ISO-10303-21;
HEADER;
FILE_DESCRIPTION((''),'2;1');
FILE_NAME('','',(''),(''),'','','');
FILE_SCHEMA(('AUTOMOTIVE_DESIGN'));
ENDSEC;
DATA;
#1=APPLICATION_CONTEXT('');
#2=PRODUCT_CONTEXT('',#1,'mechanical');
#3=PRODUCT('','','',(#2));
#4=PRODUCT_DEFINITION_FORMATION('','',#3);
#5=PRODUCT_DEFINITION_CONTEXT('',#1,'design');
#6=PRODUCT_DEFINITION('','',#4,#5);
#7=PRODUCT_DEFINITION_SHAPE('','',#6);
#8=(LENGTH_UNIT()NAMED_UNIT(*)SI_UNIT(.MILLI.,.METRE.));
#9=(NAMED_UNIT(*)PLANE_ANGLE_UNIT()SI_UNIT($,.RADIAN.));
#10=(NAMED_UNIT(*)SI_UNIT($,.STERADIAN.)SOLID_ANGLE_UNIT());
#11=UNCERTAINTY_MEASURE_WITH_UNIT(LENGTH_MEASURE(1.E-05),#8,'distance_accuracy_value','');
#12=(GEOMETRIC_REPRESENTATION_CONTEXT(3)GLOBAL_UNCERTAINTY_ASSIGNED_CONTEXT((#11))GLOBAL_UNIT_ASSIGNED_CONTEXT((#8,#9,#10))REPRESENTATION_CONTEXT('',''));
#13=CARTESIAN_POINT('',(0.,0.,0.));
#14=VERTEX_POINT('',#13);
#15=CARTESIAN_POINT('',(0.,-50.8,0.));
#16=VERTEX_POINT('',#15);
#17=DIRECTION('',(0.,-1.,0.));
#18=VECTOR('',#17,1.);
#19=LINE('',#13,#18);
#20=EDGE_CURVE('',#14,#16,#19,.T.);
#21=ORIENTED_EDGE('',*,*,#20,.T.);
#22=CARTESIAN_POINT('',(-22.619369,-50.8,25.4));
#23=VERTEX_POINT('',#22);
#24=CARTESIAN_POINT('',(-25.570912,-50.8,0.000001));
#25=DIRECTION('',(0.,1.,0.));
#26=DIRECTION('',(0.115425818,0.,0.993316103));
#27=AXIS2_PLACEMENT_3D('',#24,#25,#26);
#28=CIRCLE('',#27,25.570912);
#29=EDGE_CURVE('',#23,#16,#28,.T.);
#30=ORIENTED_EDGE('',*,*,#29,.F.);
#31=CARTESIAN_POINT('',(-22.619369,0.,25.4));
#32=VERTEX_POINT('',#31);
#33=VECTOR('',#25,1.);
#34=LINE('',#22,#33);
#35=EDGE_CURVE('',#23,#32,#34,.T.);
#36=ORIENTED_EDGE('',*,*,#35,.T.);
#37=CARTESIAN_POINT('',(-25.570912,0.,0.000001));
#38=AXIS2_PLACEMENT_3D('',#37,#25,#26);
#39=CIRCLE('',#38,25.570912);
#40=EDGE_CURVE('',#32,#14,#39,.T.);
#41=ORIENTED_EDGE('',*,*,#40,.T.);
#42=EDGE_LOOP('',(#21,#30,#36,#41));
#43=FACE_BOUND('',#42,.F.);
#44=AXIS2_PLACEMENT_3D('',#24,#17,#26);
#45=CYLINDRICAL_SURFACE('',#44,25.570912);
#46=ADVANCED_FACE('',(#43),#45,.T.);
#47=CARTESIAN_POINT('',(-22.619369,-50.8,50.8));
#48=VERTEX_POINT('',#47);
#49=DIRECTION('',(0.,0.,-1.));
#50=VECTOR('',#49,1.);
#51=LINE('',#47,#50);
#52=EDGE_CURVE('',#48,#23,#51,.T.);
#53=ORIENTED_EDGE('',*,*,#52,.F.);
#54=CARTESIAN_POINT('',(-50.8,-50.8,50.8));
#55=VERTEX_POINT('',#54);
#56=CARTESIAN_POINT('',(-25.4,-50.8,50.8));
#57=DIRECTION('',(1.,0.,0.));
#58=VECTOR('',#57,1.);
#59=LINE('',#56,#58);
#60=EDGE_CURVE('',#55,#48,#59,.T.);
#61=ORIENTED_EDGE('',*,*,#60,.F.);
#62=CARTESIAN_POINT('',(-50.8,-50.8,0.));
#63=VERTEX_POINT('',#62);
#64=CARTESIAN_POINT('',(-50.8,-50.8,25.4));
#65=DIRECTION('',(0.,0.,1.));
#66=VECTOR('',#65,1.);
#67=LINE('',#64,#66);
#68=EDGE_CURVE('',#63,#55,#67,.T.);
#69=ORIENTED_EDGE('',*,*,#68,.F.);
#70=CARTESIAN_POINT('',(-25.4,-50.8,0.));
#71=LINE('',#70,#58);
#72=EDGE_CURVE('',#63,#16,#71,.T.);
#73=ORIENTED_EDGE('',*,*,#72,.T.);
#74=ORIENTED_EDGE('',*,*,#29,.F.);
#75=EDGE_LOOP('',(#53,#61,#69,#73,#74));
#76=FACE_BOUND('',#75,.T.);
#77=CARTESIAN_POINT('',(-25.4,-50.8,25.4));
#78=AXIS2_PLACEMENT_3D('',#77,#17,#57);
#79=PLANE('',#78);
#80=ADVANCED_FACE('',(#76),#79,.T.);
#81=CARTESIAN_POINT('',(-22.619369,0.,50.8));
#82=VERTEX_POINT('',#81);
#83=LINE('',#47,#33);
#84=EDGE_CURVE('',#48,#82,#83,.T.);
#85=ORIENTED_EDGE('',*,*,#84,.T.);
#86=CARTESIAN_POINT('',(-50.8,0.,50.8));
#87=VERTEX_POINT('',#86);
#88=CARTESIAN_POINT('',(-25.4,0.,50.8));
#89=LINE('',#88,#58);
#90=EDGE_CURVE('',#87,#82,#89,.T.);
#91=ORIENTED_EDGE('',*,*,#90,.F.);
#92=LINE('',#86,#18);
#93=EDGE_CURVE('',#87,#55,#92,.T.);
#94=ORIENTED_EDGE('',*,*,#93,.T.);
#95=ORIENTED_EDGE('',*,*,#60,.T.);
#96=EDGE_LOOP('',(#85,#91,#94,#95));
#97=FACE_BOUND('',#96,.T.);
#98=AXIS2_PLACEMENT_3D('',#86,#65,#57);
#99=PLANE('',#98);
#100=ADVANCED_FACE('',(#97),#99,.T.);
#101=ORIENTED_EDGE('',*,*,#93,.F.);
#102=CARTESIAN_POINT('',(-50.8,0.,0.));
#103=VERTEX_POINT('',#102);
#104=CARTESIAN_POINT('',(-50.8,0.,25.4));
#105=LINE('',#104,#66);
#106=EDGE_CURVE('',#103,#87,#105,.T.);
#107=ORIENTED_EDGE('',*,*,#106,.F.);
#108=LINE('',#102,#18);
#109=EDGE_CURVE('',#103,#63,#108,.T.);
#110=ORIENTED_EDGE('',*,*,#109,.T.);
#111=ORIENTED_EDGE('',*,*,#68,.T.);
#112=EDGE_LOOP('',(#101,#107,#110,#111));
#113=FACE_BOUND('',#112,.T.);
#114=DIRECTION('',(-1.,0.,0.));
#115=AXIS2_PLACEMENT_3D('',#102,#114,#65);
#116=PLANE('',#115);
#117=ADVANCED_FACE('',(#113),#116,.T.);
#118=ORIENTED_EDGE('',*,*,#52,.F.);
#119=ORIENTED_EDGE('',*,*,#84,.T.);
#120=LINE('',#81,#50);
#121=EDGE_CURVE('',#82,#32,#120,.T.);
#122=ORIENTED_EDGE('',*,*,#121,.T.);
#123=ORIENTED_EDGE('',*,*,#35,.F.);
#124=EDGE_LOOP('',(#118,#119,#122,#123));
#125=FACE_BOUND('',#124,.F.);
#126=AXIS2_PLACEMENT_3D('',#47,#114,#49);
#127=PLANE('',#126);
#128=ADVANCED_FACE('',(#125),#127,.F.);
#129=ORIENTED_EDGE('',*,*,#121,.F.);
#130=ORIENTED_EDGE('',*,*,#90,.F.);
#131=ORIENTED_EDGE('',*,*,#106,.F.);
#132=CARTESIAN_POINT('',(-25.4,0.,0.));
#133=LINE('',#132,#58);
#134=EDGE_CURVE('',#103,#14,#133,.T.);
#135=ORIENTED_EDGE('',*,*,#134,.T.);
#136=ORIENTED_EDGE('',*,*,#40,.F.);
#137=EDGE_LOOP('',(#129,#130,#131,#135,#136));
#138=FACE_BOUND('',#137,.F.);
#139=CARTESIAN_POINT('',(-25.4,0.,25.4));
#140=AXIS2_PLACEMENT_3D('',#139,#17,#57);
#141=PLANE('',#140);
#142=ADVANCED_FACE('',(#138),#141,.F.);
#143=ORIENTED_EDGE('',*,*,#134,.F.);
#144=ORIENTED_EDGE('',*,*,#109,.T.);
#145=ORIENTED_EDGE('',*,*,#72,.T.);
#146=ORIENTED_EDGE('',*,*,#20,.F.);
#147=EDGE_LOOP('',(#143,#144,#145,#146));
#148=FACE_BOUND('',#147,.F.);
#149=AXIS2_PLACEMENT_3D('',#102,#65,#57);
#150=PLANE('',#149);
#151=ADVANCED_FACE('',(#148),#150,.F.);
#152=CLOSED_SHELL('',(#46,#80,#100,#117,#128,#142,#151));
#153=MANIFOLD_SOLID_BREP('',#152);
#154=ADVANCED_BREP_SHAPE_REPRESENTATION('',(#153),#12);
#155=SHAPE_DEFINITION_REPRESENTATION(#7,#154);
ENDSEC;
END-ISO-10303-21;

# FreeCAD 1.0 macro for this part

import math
import FreeCAD as App
import Part
import Sketcher
from FreeCAD import Vector
Q = App.Units.Quantity


def add_polygon(sketch, points):
    """Adds a closed chain of lines whose ends are joined by coincident constraints."""
    first, n = sketch.GeometryCount, len(points)
    for a, b in zip(points, points[1:] + points[:1]):
        sketch.addGeometry(Part.LineSegment(App.Vector(*a, 0), App.Vector(*b, 0)), False)
    for i in range(n):
        sketch.addConstraint(Sketcher.Constraint("Coincident", first + i, 2, first + (i + 1) % n, 1))

doc = App.newDocument("Part")
body = doc.addObject("PartDesign::Body", "Body")

# Sketch on XZ plane
sketch1 = body.newObject("Sketcher::SketchObject", "Sketch")
sketch1.AttachmentSupport = (doc.getObject("XZ_Plane"), [""])
sketch1.MapMode = "FlatFace"
add_polygon(sketch1, [(-51, 51), (-51, 0), (0, 0), (0, 51)])  # lines 0-3
sketch1.addConstraint([
    Sketcher.Constraint("Vertical", 0),
    Sketcher.Constraint("Horizontal", 1),
    Sketcher.Constraint("Vertical", 2),
    Sketcher.Constraint("Horizontal", 3),
    Sketcher.Constraint("Coincident", 1, 2, -1, 1),
    Sketcher.Constraint("Equal", 3, 0),
    Sketcher.Constraint("DistanceX", 1, 1, 1, 2, Q("2 in")),
])
pad1 = body.newObject("PartDesign::Pad", "Pad")
pad1.Profile = sketch1
pad1.Length = Q("2 in")

# Sketch on XZ plane
sketch2 = body.newObject("Sketcher::SketchObject", "Sketch001")
sketch2.AttachmentSupport = (doc.getObject("XZ_Plane"), [""])
sketch2.MapMode = "FlatFace"
sketch2.AttachmentOffset = App.Placement(Vector(0, 0, 2 * 25.4), App.Rotation())
sketch2.addGeometry([
    Part.ArcOfCircle(Part.Circle(Vector(-26, 0, 0), Vector(0, 0, 1), 26), math.radians(0), math.radians(83)),
    Part.LineSegment(Vector(0, 0, 0), Vector(0, 51, 0)),
    Part.LineSegment(Vector(0, 51, 0), Vector(-23, 51, 0)),
    Part.LineSegment(Vector(-23, 51, 0), Vector(-23, 25, 0)),
], False)
sketch2.addConstraint([
    Sketcher.Constraint("Tangent", 0, 1, 1, 1),
    Sketcher.Constraint("Coincident", 1, 2, 2, 1),
    Sketcher.Constraint("Coincident", 2, 2, 3, 1),
    Sketcher.Constraint("Coincident", 3, 2, 0, 2),
    Sketcher.Constraint("Vertical", 1),
    Sketcher.Constraint("Horizontal", 2),
    Sketcher.Constraint("Vertical", 3),
    Sketcher.Constraint("Coincident", 0, 1, -1, 1),
    Sketcher.Constraint("DistanceY", 1, 1, 1, 2, Q("2 in")),
    Sketcher.Constraint("DistanceY", 3, 2, 3, 1, Q("1 in")),
    Sketcher.Constraint("Radius", 0, 25.570912),
])
pocket1 = body.newObject("PartDesign::Pocket", "Pocket")
pocket1.Profile = sketch2
pocket1.Length = Q("2 in")

doc.recompute()
